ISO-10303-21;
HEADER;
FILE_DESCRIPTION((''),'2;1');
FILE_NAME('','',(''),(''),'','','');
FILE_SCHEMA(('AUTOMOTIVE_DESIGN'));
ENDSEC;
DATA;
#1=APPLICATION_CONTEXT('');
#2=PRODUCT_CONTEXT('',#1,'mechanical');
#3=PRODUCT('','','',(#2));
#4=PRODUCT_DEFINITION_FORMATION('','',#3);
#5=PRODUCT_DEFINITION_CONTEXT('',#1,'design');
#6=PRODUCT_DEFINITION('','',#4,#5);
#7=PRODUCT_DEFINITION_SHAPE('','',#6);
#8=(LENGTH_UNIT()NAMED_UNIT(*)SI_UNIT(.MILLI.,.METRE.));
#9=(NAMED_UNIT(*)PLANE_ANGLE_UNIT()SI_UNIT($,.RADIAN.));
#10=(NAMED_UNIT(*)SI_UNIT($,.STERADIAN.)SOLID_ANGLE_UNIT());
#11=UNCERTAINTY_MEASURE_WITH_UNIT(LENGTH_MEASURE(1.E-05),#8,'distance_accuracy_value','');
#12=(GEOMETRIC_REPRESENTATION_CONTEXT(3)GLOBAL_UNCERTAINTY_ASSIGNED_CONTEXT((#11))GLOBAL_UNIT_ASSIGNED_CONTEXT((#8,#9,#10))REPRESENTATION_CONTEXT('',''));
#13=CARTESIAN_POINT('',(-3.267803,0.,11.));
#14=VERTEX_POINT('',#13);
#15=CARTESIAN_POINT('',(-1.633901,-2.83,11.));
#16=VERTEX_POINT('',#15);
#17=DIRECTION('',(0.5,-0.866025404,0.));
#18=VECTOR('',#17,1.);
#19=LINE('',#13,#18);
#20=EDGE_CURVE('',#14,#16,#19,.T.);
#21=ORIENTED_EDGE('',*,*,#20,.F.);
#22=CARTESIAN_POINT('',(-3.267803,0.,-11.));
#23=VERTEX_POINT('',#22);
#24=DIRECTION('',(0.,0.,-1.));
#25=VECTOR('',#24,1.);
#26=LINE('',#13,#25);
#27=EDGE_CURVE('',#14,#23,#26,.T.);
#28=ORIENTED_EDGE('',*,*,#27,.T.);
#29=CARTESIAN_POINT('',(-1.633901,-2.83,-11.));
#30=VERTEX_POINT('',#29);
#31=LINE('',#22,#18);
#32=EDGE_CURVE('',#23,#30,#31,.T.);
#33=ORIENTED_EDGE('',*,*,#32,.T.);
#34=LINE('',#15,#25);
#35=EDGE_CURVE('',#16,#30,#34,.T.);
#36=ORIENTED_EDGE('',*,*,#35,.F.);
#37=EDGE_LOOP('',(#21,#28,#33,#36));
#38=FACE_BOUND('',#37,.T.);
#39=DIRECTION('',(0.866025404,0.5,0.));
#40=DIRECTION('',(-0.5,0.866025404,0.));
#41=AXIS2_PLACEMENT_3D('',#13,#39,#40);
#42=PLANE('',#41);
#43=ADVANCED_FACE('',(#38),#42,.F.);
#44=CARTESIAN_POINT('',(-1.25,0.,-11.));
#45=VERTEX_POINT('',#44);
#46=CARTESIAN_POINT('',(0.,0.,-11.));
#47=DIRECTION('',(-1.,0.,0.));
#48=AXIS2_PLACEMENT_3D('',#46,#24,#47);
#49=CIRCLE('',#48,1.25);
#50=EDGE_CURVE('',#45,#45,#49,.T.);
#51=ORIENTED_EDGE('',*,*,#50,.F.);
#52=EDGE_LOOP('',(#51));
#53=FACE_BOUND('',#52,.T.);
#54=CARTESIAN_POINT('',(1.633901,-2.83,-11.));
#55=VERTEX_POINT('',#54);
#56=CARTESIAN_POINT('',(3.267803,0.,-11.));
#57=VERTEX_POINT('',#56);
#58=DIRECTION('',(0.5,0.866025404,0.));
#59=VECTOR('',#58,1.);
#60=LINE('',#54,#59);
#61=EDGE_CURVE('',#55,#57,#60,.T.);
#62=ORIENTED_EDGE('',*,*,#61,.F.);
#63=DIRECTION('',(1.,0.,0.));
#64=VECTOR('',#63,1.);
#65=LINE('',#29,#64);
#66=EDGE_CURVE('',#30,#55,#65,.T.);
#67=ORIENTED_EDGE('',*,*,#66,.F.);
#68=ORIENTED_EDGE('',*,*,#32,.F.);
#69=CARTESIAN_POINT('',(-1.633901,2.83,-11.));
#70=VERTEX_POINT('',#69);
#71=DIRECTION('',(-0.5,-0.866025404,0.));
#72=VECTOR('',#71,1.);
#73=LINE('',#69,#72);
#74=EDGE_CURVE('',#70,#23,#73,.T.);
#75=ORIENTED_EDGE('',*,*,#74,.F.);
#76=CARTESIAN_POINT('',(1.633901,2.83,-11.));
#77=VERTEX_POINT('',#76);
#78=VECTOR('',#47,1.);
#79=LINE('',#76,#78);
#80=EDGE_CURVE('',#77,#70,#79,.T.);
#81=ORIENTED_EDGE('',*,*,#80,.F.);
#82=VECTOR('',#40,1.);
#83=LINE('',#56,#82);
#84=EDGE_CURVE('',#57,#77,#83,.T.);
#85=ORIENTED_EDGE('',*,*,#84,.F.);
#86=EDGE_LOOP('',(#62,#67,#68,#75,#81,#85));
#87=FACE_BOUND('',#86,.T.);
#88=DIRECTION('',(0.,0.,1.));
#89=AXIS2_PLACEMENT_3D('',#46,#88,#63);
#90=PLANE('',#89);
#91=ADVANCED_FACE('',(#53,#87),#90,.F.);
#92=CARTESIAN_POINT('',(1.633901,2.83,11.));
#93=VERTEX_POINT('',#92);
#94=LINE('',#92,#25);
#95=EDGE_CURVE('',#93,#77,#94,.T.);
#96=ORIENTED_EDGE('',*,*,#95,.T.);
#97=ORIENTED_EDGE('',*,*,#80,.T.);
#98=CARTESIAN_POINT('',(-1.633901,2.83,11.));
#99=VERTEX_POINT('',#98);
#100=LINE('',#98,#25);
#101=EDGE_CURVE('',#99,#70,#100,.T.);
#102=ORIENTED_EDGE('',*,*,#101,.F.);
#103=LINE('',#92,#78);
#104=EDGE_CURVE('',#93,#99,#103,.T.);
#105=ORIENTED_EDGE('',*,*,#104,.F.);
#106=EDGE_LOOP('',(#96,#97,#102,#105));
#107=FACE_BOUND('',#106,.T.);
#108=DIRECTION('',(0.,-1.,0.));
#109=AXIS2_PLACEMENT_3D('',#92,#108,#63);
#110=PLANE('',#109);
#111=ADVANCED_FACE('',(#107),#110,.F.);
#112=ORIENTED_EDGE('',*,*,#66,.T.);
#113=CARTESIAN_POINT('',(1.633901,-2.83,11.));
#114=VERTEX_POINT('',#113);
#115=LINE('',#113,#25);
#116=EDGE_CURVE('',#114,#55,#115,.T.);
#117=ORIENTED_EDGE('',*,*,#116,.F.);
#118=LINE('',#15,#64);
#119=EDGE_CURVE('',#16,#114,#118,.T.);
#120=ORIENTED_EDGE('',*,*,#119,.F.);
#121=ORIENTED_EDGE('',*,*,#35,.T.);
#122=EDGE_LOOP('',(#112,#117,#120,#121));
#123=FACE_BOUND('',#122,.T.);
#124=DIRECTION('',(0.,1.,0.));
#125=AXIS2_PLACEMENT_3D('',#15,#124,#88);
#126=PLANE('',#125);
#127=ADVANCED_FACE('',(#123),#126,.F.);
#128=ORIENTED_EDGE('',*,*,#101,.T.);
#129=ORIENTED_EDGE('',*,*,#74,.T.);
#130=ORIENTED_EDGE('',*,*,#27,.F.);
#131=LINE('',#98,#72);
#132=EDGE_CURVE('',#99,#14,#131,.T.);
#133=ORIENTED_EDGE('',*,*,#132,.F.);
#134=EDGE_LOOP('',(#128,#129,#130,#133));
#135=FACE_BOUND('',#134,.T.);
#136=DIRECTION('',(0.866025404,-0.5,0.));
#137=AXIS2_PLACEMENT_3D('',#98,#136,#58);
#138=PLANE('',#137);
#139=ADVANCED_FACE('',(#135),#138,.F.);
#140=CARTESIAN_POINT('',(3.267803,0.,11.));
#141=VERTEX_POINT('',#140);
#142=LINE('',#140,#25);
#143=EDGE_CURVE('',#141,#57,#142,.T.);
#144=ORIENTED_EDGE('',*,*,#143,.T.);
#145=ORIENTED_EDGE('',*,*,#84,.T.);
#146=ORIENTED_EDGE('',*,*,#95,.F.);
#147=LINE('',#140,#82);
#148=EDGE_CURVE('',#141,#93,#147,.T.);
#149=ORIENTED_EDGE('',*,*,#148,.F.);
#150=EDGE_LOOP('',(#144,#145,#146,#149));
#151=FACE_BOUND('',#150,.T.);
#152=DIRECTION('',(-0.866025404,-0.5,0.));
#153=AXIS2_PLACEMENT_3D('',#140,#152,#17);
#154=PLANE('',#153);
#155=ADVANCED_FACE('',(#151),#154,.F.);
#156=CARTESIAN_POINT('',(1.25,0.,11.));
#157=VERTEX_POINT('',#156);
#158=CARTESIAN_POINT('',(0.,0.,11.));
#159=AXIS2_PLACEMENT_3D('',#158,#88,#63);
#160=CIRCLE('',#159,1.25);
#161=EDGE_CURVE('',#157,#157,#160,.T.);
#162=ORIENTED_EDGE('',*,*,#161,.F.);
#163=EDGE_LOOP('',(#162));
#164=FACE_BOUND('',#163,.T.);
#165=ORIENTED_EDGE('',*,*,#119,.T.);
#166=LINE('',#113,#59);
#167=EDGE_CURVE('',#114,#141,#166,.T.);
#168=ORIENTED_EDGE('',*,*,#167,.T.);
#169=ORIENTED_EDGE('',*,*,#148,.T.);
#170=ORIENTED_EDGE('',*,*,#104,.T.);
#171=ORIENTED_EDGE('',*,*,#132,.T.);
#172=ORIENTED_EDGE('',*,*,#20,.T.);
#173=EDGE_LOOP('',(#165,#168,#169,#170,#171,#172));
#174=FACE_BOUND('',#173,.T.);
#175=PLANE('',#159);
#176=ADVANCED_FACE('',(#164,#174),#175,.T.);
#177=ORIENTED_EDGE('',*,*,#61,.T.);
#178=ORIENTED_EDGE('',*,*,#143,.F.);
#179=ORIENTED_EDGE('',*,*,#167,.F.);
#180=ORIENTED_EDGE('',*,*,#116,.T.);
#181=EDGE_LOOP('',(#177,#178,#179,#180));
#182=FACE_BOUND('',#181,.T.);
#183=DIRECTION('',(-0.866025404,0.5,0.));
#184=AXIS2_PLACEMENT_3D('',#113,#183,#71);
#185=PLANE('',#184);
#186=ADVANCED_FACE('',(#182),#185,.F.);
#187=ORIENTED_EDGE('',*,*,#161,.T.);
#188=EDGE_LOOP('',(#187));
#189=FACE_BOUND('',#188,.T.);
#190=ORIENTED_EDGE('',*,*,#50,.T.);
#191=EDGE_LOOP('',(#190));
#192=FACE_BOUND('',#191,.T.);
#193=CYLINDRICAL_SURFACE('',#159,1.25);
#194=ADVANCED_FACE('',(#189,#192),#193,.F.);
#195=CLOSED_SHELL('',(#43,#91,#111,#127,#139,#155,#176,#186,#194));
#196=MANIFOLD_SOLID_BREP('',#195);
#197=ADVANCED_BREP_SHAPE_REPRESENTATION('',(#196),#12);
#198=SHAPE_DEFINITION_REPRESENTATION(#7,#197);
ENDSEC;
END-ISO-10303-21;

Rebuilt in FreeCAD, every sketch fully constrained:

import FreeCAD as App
import Part
import Sketcher

V = App.Vector
Q = App.Units.Quantity


def add_polygon(sketch, points):
    """Adds a closed chain of lines whose ends are joined by coincident constraints."""
    first, n = sketch.GeometryCount, len(points)
    for a, b in zip(points, points[1:] + points[:1]):
        sketch.addGeometry(Part.LineSegment(App.Vector(*a, 0), App.Vector(*b, 0)), False)
    for i in range(n):
        sketch.addConstraint(Sketcher.Constraint("Coincident", first + i, 2, first + (i + 1) % n, 1))

doc = App.newDocument("Part")
body = doc.addObject("PartDesign::Body", "Body")

# Sketch on XY plane
sketch1 = body.newObject("Sketcher::SketchObject", "Sketch")
sketch1.AttachmentSupport = (doc.getObject("XY_Plane"), [""])
sketch1.MapMode = "FlatFace"
add_polygon(sketch1, [(1.633901, 2.83), (-1.633901, 2.83), (-3.267803, 0), (-1.633901, -2.83), (1.633901, -2.83), (3.267803, 0)])  # lines 0-5
sketch1.addConstraint(Sketcher.Constraint("Horizontal", 0))
sketch1.addConstraint(Sketcher.Constraint("Horizontal", 3))
sketch1.addConstraint(Sketcher.Constraint("Symmetric", 0, 2, 3, 2, -1, 1))
sketch1.addConstraint(Sketcher.Constraint("Symmetric", 1, 2, 4, 2, -1, 1))
sketch1.addConstraint(Sketcher.Constraint("PointOnObject", 1, 2, -1))
sketch1.addConstraint(Sketcher.Constraint("Parallel", 2, 5))
sketch1.addConstraint(Sketcher.Constraint("Vertical", 0, 2, 2, 2))
sketch1.addConstraint(Sketcher.Constraint("Angle", 1, Q("-120 deg")))
sketch1.addConstraint(Sketcher.Constraint("DistanceY", -1, 1, 0, 2, 2.83))
sketch1.addConstraint(Sketcher.Constraint("DistanceX", 0, 2, -1, 1, 1.633901))
pad1 = body.newObject("PartDesign::Pad", "Pad")
pad1.Profile = sketch1
pad1.Length = 22
pad1.Midplane = True

# Sketch on YZ plane
sketch2 = body.newObject("Sketcher::SketchObject", "Sketch001")
sketch2.AttachmentSupport = (doc.getObject("YZ_Plane"), [""])
sketch2.MapMode = "FlatFace"
add_polygon(sketch2, [(0, -2.951076), (0, 11), (-1.25, 11), (-1.25, -2.2)])  # lines 0-3
sketch2.addConstraint(Sketcher.Constraint("Vertical", 0))
sketch2.addConstraint(Sketcher.Constraint("Horizontal", 1))
sketch2.addConstraint(Sketcher.Constraint("Vertical", 2))
sketch2.addConstraint(Sketcher.Constraint("PointOnObject", 0, 2, -2))
sketch2.addConstraint(Sketcher.Constraint("Angle", 3, Q("-31 deg")))
sketch2.addConstraint(Sketcher.Constraint("DistanceY", 2, 2, 2, 1, 13.2))
sketch2.addConstraint(Sketcher.Constraint("DistanceY", -1, 1, 0, 2, 11.0))
sketch2.addConstraint(Sketcher.Constraint("DistanceX", 1, 2, 1, 1, 1.25))
groove = body.newObject("PartDesign::Groove", "Groove")
groove.Profile = sketch2
groove.ReferenceAxis = (sketch2, ["V_Axis"])
groove.Angle = 360
doc.recompute()

mirrored = body.newObject("PartDesign::Mirrored", "Mirrored")
mirrored.Originals = [groove]
mirrored.MirrorPlane = (doc.getObject("XY_Plane"), [""])
body.Tip = mirrored

doc.recompute()
